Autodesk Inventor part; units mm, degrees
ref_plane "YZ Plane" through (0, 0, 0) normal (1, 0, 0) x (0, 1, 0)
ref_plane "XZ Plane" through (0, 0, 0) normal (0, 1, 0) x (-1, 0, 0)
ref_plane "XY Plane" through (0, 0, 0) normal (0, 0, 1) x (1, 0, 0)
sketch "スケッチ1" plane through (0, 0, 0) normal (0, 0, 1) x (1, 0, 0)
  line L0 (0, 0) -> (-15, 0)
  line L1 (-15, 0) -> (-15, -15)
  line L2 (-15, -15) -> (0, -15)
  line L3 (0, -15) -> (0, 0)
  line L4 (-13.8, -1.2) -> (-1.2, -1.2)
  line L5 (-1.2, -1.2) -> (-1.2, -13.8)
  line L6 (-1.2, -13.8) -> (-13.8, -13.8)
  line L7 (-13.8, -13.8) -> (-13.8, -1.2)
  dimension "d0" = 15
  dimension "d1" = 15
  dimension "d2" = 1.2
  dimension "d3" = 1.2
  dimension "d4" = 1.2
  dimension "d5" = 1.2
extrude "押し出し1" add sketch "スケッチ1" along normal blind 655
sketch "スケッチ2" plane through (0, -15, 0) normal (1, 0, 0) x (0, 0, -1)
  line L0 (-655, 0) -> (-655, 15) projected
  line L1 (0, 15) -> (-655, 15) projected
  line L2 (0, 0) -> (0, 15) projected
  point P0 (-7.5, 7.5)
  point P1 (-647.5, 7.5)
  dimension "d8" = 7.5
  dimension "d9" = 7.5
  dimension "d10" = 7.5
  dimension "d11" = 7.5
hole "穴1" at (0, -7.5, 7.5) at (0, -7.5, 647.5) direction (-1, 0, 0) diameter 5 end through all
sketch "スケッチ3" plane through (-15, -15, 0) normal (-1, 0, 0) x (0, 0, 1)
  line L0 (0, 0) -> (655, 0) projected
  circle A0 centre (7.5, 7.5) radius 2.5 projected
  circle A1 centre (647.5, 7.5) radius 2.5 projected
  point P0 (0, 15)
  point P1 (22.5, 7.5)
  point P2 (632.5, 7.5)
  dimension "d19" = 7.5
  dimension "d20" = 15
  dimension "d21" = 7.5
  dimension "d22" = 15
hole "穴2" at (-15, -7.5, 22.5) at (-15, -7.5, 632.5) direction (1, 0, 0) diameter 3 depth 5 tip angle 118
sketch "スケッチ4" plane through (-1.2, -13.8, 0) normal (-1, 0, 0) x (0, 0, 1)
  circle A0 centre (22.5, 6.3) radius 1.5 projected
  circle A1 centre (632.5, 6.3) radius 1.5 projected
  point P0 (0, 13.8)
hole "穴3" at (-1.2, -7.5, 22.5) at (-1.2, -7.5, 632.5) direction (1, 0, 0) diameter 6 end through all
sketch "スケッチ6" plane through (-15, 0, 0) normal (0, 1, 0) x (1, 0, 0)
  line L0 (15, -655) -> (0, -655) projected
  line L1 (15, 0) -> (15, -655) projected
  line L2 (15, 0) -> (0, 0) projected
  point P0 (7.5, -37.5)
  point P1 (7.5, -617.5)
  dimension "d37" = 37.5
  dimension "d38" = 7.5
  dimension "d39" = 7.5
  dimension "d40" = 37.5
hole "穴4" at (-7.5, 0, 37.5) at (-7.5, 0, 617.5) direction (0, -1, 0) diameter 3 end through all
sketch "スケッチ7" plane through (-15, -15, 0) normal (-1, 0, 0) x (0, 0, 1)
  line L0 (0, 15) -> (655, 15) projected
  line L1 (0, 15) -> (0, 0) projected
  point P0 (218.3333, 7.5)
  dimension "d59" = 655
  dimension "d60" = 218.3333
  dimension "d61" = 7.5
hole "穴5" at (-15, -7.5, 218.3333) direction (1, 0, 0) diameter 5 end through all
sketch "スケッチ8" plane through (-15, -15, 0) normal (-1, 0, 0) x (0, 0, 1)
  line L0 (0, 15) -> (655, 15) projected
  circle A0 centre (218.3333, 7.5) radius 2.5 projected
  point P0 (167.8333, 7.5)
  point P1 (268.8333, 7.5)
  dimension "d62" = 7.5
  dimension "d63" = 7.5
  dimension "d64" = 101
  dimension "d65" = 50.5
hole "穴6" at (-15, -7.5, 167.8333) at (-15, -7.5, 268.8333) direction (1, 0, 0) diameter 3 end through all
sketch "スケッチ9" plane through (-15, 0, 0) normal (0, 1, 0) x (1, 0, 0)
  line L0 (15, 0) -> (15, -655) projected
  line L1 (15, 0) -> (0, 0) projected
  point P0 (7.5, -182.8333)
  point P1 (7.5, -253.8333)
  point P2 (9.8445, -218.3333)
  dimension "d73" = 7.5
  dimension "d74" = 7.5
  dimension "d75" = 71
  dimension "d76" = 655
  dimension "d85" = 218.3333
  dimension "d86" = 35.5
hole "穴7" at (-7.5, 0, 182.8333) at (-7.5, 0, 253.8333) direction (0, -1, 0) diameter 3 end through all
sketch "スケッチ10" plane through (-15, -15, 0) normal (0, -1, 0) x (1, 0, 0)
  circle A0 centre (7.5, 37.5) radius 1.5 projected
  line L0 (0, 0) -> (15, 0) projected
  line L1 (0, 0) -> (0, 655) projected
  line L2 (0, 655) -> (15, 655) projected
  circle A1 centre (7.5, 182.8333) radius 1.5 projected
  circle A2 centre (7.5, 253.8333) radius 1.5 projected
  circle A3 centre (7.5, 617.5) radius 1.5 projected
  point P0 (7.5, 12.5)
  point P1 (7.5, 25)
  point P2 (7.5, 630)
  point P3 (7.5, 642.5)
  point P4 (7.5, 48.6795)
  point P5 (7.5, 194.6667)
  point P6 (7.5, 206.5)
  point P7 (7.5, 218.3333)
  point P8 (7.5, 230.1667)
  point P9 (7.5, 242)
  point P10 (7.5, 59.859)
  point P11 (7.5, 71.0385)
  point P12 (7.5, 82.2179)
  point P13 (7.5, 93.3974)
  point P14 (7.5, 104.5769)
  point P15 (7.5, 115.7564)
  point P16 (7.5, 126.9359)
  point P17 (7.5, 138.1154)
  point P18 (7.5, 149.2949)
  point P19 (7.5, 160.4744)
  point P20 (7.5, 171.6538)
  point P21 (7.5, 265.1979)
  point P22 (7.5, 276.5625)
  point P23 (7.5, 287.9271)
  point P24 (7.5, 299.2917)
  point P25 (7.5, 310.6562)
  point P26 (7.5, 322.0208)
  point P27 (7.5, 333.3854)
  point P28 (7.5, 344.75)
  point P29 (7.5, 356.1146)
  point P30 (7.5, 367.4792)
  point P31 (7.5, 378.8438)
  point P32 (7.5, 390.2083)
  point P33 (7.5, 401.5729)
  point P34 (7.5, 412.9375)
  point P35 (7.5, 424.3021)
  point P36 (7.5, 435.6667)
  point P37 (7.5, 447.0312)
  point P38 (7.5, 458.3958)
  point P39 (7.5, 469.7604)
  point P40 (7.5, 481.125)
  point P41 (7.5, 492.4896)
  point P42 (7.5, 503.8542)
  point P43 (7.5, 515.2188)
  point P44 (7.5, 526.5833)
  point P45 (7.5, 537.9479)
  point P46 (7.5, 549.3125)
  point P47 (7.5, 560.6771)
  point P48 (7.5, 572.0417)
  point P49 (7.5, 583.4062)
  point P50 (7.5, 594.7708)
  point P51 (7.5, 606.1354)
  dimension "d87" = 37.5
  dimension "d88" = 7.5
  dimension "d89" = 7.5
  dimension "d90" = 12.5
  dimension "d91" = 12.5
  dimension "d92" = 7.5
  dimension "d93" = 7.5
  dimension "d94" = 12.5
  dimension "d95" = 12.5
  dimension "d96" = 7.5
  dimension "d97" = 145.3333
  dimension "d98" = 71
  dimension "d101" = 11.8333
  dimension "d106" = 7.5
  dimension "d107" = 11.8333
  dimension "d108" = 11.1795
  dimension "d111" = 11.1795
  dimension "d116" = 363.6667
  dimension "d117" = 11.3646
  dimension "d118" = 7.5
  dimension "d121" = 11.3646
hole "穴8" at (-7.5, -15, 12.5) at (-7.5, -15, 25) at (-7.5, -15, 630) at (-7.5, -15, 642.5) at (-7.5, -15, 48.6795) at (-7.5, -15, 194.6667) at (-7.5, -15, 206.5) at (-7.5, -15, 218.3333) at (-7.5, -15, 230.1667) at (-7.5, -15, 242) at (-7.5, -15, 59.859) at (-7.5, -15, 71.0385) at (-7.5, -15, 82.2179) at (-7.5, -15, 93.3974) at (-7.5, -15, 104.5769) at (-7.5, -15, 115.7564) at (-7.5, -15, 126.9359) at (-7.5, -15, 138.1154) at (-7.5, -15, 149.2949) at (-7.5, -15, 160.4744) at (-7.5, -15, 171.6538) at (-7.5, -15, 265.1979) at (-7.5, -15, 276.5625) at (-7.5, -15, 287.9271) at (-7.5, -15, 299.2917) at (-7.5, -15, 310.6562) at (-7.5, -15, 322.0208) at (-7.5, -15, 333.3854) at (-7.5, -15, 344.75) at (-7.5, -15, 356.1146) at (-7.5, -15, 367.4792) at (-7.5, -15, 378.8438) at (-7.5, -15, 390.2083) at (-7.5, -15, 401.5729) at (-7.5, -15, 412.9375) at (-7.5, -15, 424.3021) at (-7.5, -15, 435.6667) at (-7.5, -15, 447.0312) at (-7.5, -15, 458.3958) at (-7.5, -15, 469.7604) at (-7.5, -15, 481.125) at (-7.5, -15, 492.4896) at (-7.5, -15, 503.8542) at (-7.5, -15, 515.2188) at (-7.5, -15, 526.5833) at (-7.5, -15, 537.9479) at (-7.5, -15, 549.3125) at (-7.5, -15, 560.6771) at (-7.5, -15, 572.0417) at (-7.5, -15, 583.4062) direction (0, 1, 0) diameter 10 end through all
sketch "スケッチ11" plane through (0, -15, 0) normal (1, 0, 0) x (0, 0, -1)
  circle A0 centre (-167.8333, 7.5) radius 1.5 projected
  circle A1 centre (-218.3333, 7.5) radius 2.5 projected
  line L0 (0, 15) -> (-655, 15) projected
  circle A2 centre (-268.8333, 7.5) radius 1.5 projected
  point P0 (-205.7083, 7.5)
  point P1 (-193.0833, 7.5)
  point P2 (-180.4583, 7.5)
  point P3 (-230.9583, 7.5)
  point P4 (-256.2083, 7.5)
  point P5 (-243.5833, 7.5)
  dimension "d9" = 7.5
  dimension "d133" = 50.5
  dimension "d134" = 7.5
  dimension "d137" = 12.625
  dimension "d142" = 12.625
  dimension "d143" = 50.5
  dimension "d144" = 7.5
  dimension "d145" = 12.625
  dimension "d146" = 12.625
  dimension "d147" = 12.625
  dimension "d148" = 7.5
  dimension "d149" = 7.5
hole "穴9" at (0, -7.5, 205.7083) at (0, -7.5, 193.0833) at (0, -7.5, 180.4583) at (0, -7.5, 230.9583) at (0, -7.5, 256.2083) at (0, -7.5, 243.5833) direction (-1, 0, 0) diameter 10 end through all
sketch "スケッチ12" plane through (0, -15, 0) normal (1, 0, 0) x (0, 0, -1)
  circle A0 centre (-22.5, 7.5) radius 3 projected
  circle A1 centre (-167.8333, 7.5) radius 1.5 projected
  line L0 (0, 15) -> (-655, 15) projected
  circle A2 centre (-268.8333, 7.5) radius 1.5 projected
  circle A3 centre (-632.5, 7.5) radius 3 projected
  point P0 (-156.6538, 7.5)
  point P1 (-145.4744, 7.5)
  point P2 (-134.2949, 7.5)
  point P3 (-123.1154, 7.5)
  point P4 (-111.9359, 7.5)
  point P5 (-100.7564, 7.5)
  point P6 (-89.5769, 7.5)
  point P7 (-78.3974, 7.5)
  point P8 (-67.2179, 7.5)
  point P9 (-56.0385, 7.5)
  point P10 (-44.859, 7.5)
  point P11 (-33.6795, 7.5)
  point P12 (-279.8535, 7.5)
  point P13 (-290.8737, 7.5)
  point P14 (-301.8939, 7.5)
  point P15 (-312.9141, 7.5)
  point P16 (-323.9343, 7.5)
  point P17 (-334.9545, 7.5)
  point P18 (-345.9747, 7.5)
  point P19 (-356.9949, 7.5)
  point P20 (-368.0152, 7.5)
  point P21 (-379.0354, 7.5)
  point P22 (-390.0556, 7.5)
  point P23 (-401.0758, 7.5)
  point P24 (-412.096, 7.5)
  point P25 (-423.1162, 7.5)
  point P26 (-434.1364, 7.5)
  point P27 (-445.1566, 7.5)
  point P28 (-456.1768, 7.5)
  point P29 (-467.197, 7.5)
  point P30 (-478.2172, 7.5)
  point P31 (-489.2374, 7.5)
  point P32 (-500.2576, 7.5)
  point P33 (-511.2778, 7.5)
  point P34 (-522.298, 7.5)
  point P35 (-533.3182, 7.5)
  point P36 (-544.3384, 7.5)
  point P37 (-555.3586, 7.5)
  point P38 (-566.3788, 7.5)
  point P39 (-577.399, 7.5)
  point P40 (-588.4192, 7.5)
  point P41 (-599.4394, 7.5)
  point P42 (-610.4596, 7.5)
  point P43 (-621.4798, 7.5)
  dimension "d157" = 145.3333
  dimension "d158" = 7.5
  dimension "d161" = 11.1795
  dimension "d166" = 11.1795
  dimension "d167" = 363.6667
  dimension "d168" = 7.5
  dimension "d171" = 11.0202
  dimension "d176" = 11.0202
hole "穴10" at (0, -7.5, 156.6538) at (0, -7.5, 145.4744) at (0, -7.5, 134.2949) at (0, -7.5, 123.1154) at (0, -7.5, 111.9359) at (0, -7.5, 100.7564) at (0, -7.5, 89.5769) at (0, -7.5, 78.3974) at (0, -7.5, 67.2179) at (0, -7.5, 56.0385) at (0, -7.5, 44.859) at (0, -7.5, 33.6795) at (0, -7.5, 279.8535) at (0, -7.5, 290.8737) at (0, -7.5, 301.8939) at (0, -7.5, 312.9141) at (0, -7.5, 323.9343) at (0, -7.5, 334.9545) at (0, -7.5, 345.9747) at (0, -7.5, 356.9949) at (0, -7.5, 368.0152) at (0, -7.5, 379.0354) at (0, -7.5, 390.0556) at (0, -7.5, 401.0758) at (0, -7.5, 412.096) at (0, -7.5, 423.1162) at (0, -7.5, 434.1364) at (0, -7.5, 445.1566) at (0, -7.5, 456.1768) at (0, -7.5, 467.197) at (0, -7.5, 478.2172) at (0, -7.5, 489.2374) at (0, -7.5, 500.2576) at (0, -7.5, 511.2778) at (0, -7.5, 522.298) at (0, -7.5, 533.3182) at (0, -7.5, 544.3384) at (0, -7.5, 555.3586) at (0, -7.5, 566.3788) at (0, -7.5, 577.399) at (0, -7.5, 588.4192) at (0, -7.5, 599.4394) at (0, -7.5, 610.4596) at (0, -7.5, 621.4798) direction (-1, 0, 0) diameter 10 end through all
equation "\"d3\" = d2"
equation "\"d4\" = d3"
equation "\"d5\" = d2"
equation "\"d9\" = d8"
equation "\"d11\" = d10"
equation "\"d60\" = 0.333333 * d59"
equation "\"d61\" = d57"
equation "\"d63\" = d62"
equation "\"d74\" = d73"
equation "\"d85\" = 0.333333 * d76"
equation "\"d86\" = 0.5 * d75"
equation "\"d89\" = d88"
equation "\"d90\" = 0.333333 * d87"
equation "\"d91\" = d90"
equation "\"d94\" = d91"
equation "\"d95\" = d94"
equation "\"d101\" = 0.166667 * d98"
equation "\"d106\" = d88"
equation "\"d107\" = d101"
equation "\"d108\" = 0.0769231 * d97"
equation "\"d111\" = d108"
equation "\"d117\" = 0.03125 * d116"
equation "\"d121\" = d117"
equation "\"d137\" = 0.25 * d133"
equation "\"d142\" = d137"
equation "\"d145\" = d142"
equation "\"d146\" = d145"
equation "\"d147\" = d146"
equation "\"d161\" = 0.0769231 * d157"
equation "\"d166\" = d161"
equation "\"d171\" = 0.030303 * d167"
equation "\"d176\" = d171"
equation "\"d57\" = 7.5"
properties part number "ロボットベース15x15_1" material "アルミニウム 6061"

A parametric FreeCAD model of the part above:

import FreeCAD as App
import Part
import Sketcher
Q = App.Units.Quantity


def add_polygon(sketch, points):
    """Adds a closed chain of lines whose ends are joined by coincident constraints."""
    first, n = sketch.GeometryCount, len(points)
    for a, b in zip(points, points[1:] + points[:1]):
        sketch.addGeometry(Part.LineSegment(App.Vector(*a, 0), App.Vector(*b, 0)), False)
    for i in range(n):
        sketch.addConstraint(Sketcher.Constraint("Coincident", first + i, 2, first + (i + 1) % n, 1))

doc = App.newDocument("Part")
body = doc.addObject("PartDesign::Body", "Body")

# Sketch on XY plane
sketch1 = body.newObject("Sketcher::SketchObject", "Sketch")
sketch1.AttachmentSupport = (doc.getObject("XY_Plane"), [""])
sketch1.MapMode = "FlatFace"
add_polygon(sketch1, [(0, -15), (0, 0), (-15, 0), (-15, -15)])  # lines 0-3
add_polygon(sketch1, [(-14, -14), (-14, -1), (-1, -1), (-1, -14)])  # lines 4-7
sketch1.addConstraint([
    Sketcher.Constraint("Vertical", 0),
    Sketcher.Constraint("Horizontal", 1),
    Sketcher.Constraint("Vertical", 2),
    Sketcher.Constraint("Horizontal", 3),
    Sketcher.Constraint("Vertical", 4),
    Sketcher.Constraint("Horizontal", 5),
    Sketcher.Constraint("Vertical", 6),
    Sketcher.Constraint("Horizontal", 7),
    Sketcher.Constraint("Coincident", 0, 2, -1, 1),
    Sketcher.Constraint("Equal", 3, 0),
    Sketcher.Constraint("Equal", 7, 4),
    Sketcher.Constraint("DistanceX", 1, 2, 1, 1, Q("15 mm")),
    Sketcher.Constraint("DistanceY", 4, 2, -1, 1, Q("1.2 mm")),
    Sketcher.Constraint("DistanceX", 5, 2, -1, 1, Q("1.2 mm")),
    Sketcher.Constraint("DistanceX", 1, 2, 4, 2, Q("1.2 mm")),
])
pad1 = body.newObject("PartDesign::Pad", "Pad")
pad1.Profile = sketch1
pad1.Length = 655

# Sketch on YZ plane
sketch2 = body.newObject("Sketcher::SketchObject", "Sketch001")
sketch2.AttachmentSupport = (doc.getObject("YZ_Plane"), [""])
sketch2.MapMode = "FlatFace"
sketch2.addGeometry([
    Part.Circle(App.Vector(-7.5, 7.5, 0), App.Vector(0, 0, 1), 2.5),
    Part.Circle(App.Vector(-7.5, 647.5, 0), App.Vector(0, 0, 1), 2.5),
], False)
sketch2.addConstraint([
    Sketcher.Constraint("Equal", 0, 1),
    Sketcher.Constraint("Vertical", 0, 3, 1, 3),
    Sketcher.Constraint("Diameter", 0, Q("5 mm")),
    Sketcher.Constraint("DistanceY", 0, 3, 1, 3, Q("640 mm")),
    Sketcher.Constraint("DistanceX", 0, 3, -1, 1, Q("7.5 mm")),
    Sketcher.Constraint("DistanceY", -1, 1, 0, 3, Q("7.5 mm")),
])
doc.recompute()
hole = body.newObject("PartDesign::Hole", "Hole")
hole.Profile = sketch2
hole.ThreadType = "None"
hole.Diameter = 5
hole.DepthType = "ThroughAll"

# Sketch on YZ plane
sketch3 = body.newObject("Sketcher::SketchObject", "Sketch002")
sketch3.AttachmentSupport = (doc.getObject("YZ_Plane"), [""])
sketch3.MapMode = "FlatFace"
sketch3.AttachmentOffset = App.Placement(App.Vector(0, 0, -15), App.Rotation())
sketch3.addGeometry([
    Part.Circle(App.Vector(-7.5, 22.5, 0), App.Vector(0, 0, 1), 1.5),
    Part.Circle(App.Vector(-7.5, 632.5, 0), App.Vector(0, 0, 1), 1.5),
], False)
sketch3.addConstraint([
    Sketcher.Constraint("Equal", 0, 1),
    Sketcher.Constraint("Vertical", 0, 3, 1, 3),
    Sketcher.Constraint("Diameter", 0, Q("3 mm")),
    Sketcher.Constraint("DistanceY", 0, 3, 1, 3, Q("610 mm")),
    Sketcher.Constraint("DistanceX", 0, 3, -1, 1, Q("7.5 mm")),
    Sketcher.Constraint("DistanceY", -1, 1, 0, 3, Q("22.5 mm")),
])
doc.recompute()
hole2 = body.newObject("PartDesign::Hole", "Hole001")
hole2.Profile = sketch3
hole2.ThreadType = "None"
hole2.Diameter = 3
hole2.DepthType = "Dimension"
hole2.Depth = 5
hole2.DrillPoint = "Angled"
hole2.DrillPointAngle = 118
hole2.Reversed = True

# Sketch on YZ plane
sketch4 = body.newObject("Sketcher::SketchObject", "Sketch003")
sketch4.AttachmentSupport = (doc.getObject("YZ_Plane"), [""])
sketch4.MapMode = "FlatFace"
sketch4.AttachmentOffset = App.Placement(App.Vector(0, 0, -1.2), App.Rotation())
sketch4.addGeometry([
    Part.Circle(App.Vector(-7.5, 22.5, 0), App.Vector(0, 0, 1), 3),
    Part.Circle(App.Vector(-7.5, 632.5, 0), App.Vector(0, 0, 1), 3),
], False)
sketch4.addConstraint([
    Sketcher.Constraint("Equal", 0, 1),
    Sketcher.Constraint("Vertical", 0, 3, 1, 3),
    Sketcher.Constraint("Diameter", 0, Q("6 mm")),
    Sketcher.Constraint("DistanceY", 0, 3, 1, 3, Q("610 mm")),
    Sketcher.Constraint("DistanceX", 0, 3, -1, 1, Q("7.5 mm")),
    Sketcher.Constraint("DistanceY", -1, 1, 0, 3, Q("22.5 mm")),
])
doc.recompute()
hole3 = body.newObject("PartDesign::Hole", "Hole002")
hole3.Profile = sketch4
hole3.ThreadType = "None"
hole3.Diameter = 6
hole3.DepthType = "ThroughAll"
hole3.Reversed = True

# Sketch on XZ plane
sketch5 = body.newObject("Sketcher::SketchObject", "Sketch004")
sketch5.AttachmentSupport = (doc.getObject("XZ_Plane"), [""])
sketch5.MapMode = "FlatFace"
sketch5.addGeometry([
    Part.Circle(App.Vector(-7.5, 37.5, 0), App.Vector(0, 0, 1), 1.5),
    Part.Circle(App.Vector(-7.5, 617.5, 0), App.Vector(0, 0, 1), 1.5),
], False)
sketch5.addConstraint([
    Sketcher.Constraint("Equal", 0, 1),
    Sketcher.Constraint("Vertical", 0, 3, 1, 3),
    Sketcher.Constraint("Diameter", 0, Q("3 mm")),
    Sketcher.Constraint("DistanceY", 0, 3, 1, 3, Q("580 mm")),
    Sketcher.Constraint("DistanceX", 0, 3, -1, 1, Q("7.5 mm")),
    Sketcher.Constraint("DistanceY", -1, 1, 0, 3, Q("37.5 mm")),
])
doc.recompute()
hole4 = body.newObject("PartDesign::Hole", "Hole003")
hole4.Profile = sketch5
hole4.ThreadType = "None"
hole4.Diameter = 3
hole4.DepthType = "ThroughAll"
hole4.Reversed = True

# Sketch on YZ plane
sketch6 = body.newObject("Sketcher::SketchObject", "Sketch005")
sketch6.AttachmentSupport = (doc.getObject("YZ_Plane"), [""])
sketch6.MapMode = "FlatFace"
sketch6.AttachmentOffset = App.Placement(App.Vector(0, 0, -15), App.Rotation())
sketch6.addGeometry(Part.Circle(App.Vector(-7.5, 218.3, 0), App.Vector(0, 0, 1), 2.5), False)
sketch6.addConstraint([
    Sketcher.Constraint("Diameter", 0, Q("5 mm")),
    Sketcher.Constraint("DistanceX", 0, 3, -1, 1, Q("7.5 mm")),
    Sketcher.Constraint("DistanceY", -1, 1, 0, 3, Q("218.3333 mm")),
])
doc.recompute()
hole5 = body.newObject("PartDesign::Hole", "Hole004")
hole5.Profile = sketch6
hole5.ThreadType = "None"
hole5.Diameter = 5
hole5.DepthType = "ThroughAll"
hole5.Reversed = True

# Sketch on YZ plane
sketch7 = body.newObject("Sketcher::SketchObject", "Sketch006")
sketch7.AttachmentSupport = (doc.getObject("YZ_Plane"), [""])
sketch7.MapMode = "FlatFace"
sketch7.AttachmentOffset = App.Placement(App.Vector(0, 0, -15), App.Rotation())
sketch7.addGeometry([
    Part.Circle(App.Vector(-7.5, 167.8, 0), App.Vector(0, 0, 1), 1.5),
    Part.Circle(App.Vector(-7.5, 268.8, 0), App.Vector(0, 0, 1), 1.5),
], False)
sketch7.addConstraint([
    Sketcher.Constraint("Equal", 0, 1),
    Sketcher.Constraint("Vertical", 0, 3, 1, 3),
    Sketcher.Constraint("Diameter", 0, Q("3 mm")),
    Sketcher.Constraint("DistanceY", 0, 3, 1, 3, Q("101 mm")),
    Sketcher.Constraint("DistanceX", 0, 3, -1, 1, Q("7.5 mm")),
    Sketcher.Constraint("DistanceY", -1, 1, 0, 3, Q("167.8333 mm")),
])
doc.recompute()
hole6 = body.newObject("PartDesign::Hole", "Hole005")
hole6.Profile = sketch7
hole6.ThreadType = "None"
hole6.Diameter = 3
hole6.DepthType = "ThroughAll"
hole6.Reversed = True

# Sketch on XZ plane
sketch8 = body.newObject("Sketcher::SketchObject", "Sketch007")
sketch8.AttachmentSupport = (doc.getObject("XZ_Plane"), [""])
sketch8.MapMode = "FlatFace"
sketch8.addGeometry([
    Part.Circle(App.Vector(-7.5, 182.8, 0), App.Vector(0, 0, 1), 1.5),
    Part.Circle(App.Vector(-7.5, 253.8, 0), App.Vector(0, 0, 1), 1.5),
], False)
sketch8.addConstraint([
    Sketcher.Constraint("Equal", 0, 1),
    Sketcher.Constraint("Vertical", 0, 3, 1, 3),
    Sketcher.Constraint("Diameter", 0, Q("3 mm")),
    Sketcher.Constraint("DistanceY", 0, 3, 1, 3, Q("71 mm")),
    Sketcher.Constraint("DistanceX", 0, 3, -1, 1, Q("7.5 mm")),
    Sketcher.Constraint("DistanceY", -1, 1, 0, 3, Q("182.8333 mm")),
])
doc.recompute()
hole7 = body.newObject("PartDesign::Hole", "Hole006")
hole7.Profile = sketch8
hole7.ThreadType = "None"
hole7.Diameter = 3
hole7.DepthType = "ThroughAll"
hole7.Reversed = True

# Sketch on XZ plane
sketch9 = body.newObject("Sketcher::SketchObject", "Sketch008")
sketch9.AttachmentSupport = (doc.getObject("XZ_Plane"), [""])
sketch9.MapMode = "FlatFace"
sketch9.AttachmentOffset = App.Placement(App.Vector(0, 0, 15), App.Rotation())
sketch9.addGeometry([
    Part.Circle(App.Vector(-8, 12, 0), App.Vector(0, 0, 1), 5),  # 0
    Part.Circle(App.Vector(-8, 25, 0), App.Vector(0, 0, 1), 5),  # 1
    Part.Circle(App.Vector(-8, 630, 0), App.Vector(0, 0, 1), 5),  # 2
    Part.Circle(App.Vector(-8, 642, 0), App.Vector(0, 0, 1), 5),  # 3
    Part.Circle(App.Vector(-8, 49, 0), App.Vector(0, 0, 1), 5),  # 4
    Part.Circle(App.Vector(-8, 195, 0), App.Vector(0, 0, 1), 5),  # 5
    Part.Circle(App.Vector(-8, 206, 0), App.Vector(0, 0, 1), 5),  # 6
    Part.Circle(App.Vector(-8, 218, 0), App.Vector(0, 0, 1), 5),  # 7
    Part.Circle(App.Vector(-8, 230, 0), App.Vector(0, 0, 1), 5),  # 8
    Part.Circle(App.Vector(-8, 242, 0), App.Vector(0, 0, 1), 5),  # 9
    Part.Circle(App.Vector(-8, 60, 0), App.Vector(0, 0, 1), 5),  # 10
    Part.Circle(App.Vector(-8, 71, 0), App.Vector(0, 0, 1), 5),  # 11
    Part.Circle(App.Vector(-8, 82, 0), App.Vector(0, 0, 1), 5),  # 12
    Part.Circle(App.Vector(-8, 93, 0), App.Vector(0, 0, 1), 5),  # 13
    Part.Circle(App.Vector(-8, 105, 0), App.Vector(0, 0, 1), 5),  # 14
    Part.Circle(App.Vector(-8, 116, 0), App.Vector(0, 0, 1), 5),  # 15
    Part.Circle(App.Vector(-8, 127, 0), App.Vector(0, 0, 1), 5),  # 16
    Part.Circle(App.Vector(-8, 138, 0), App.Vector(0, 0, 1), 5),  # 17
    Part.Circle(App.Vector(-8, 149, 0), App.Vector(0, 0, 1), 5),  # 18
    Part.Circle(App.Vector(-8, 160, 0), App.Vector(0, 0, 1), 5),  # 19
    Part.Circle(App.Vector(-8, 172, 0), App.Vector(0, 0, 1), 5),  # 20
    Part.Circle(App.Vector(-8, 265, 0), App.Vector(0, 0, 1), 5),  # 21
    Part.Circle(App.Vector(-8, 277, 0), App.Vector(0, 0, 1), 5),  # 22
    Part.Circle(App.Vector(-8, 288, 0), App.Vector(0, 0, 1), 5),  # 23
    Part.Circle(App.Vector(-8, 299, 0), App.Vector(0, 0, 1), 5),  # 24
    Part.Circle(App.Vector(-8, 311, 0), App.Vector(0, 0, 1), 5),  # 25
    Part.Circle(App.Vector(-8, 322, 0), App.Vector(0, 0, 1), 5),  # 26
    Part.Circle(App.Vector(-8, 333, 0), App.Vector(0, 0, 1), 5),  # 27
    Part.Circle(App.Vector(-8, 345, 0), App.Vector(0, 0, 1), 5),  # 28
    Part.Circle(App.Vector(-8, 356, 0), App.Vector(0, 0, 1), 5),  # 29
    Part.Circle(App.Vector(-8, 367, 0), App.Vector(0, 0, 1), 5),  # 30
    Part.Circle(App.Vector(-8, 379, 0), App.Vector(0, 0, 1), 5),  # 31
    Part.Circle(App.Vector(-8, 390, 0), App.Vector(0, 0, 1), 5),  # 32
    Part.Circle(App.Vector(-8, 402, 0), App.Vector(0, 0, 1), 5),  # 33
    Part.Circle(App.Vector(-8, 413, 0), App.Vector(0, 0, 1), 5),  # 34
    Part.Circle(App.Vector(-8, 424, 0), App.Vector(0, 0, 1), 5),  # 35
    Part.Circle(App.Vector(-8, 436, 0), App.Vector(0, 0, 1), 5),  # 36
    Part.Circle(App.Vector(-8, 447, 0), App.Vector(0, 0, 1), 5),  # 37
    Part.Circle(App.Vector(-8, 458, 0), App.Vector(0, 0, 1), 5),  # 38
    Part.Circle(App.Vector(-8, 470, 0), App.Vector(0, 0, 1), 5),  # 39
    Part.Circle(App.Vector(-8, 481, 0), App.Vector(0, 0, 1), 5),  # 40
    Part.Circle(App.Vector(-8, 492, 0), App.Vector(0, 0, 1), 5),  # 41
    Part.Circle(App.Vector(-8, 504, 0), App.Vector(0, 0, 1), 5),  # 42
    Part.Circle(App.Vector(-8, 515, 0), App.Vector(0, 0, 1), 5),  # 43
    Part.Circle(App.Vector(-8, 527, 0), App.Vector(0, 0, 1), 5),  # 44
    Part.Circle(App.Vector(-8, 538, 0), App.Vector(0, 0, 1), 5),  # 45
    Part.Circle(App.Vector(-8, 549, 0), App.Vector(0, 0, 1), 5),  # 46
    Part.Circle(App.Vector(-8, 561, 0), App.Vector(0, 0, 1), 5),  # 47
    Part.Circle(App.Vector(-8, 572, 0), App.Vector(0, 0, 1), 5),  # 48
    Part.Circle(App.Vector(-8, 583, 0), App.Vector(0, 0, 1), 5),  # 49
], False)
sketch9.addConstraint([
    Sketcher.Constraint("Equal", 0, 1),
    Sketcher.Constraint("Equal", 1, 2),
    Sketcher.Constraint("Equal", 2, 3),
    Sketcher.Constraint("Equal", 3, 4),
    Sketcher.Constraint("Equal", 4, 5),
    Sketcher.Constraint("Equal", 5, 6),
    Sketcher.Constraint("Equal", 6, 7),
    Sketcher.Constraint("Equal", 7, 8),
    Sketcher.Constraint("Equal", 8, 9),
    Sketcher.Constraint("Equal", 9, 10),
    Sketcher.Constraint("Equal", 10, 11),
    Sketcher.Constraint("Equal", 11, 12),
    Sketcher.Constraint("Equal", 12, 13),
    Sketcher.Constraint("Equal", 13, 14),
    Sketcher.Constraint("Equal", 14, 15),
    Sketcher.Constraint("Equal", 15, 16),
    Sketcher.Constraint("Equal", 16, 17),
    Sketcher.Constraint("Equal", 17, 18),
    Sketcher.Constraint("Equal", 18, 19),
    Sketcher.Constraint("Equal", 19, 20),
    Sketcher.Constraint("Equal", 20, 21),
    Sketcher.Constraint("Equal", 21, 22),
    Sketcher.Constraint("Equal", 22, 23),
    Sketcher.Constraint("Equal", 23, 24),
    Sketcher.Constraint("Equal", 24, 25),
    Sketcher.Constraint("Equal", 25, 26),
    Sketcher.Constraint("Equal", 26, 27),
    Sketcher.Constraint("Equal", 27, 28),
    Sketcher.Constraint("Equal", 28, 29),
    Sketcher.Constraint("Equal", 29, 30),
    Sketcher.Constraint("Equal", 30, 31),
    Sketcher.Constraint("Equal", 31, 32),
    Sketcher.Constraint("Equal", 32, 33),
    Sketcher.Constraint("Equal", 33, 34),
    Sketcher.Constraint("Equal", 34, 35),
    Sketcher.Constraint("Equal", 35, 36),
    Sketcher.Constraint("Equal", 36, 37),
    Sketcher.Constraint("Equal", 37, 38),
    Sketcher.Constraint("Equal", 38, 39),
    Sketcher.Constraint("Equal", 39, 40),
    Sketcher.Constraint("Equal", 40, 41),
    Sketcher.Constraint("Equal", 41, 42),
    Sketcher.Constraint("Equal", 42, 43),
    Sketcher.Constraint("Equal", 43, 44),
    Sketcher.Constraint("Equal", 44, 45),
    Sketcher.Constraint("Equal", 45, 46),
    Sketcher.Constraint("Equal", 46, 47),
    Sketcher.Constraint("Equal", 47, 48),
    Sketcher.Constraint("Equal", 48, 49),
    Sketcher.Constraint("Vertical", 0, 3, 1, 3),
    Sketcher.Constraint("Vertical", 1, 3, 2, 3),
    Sketcher.Constraint("Vertical", 2, 3, 3, 3),
    Sketcher.Constraint("Vertical", 3, 3, 4, 3),
    Sketcher.Constraint("Vertical", 4, 3, 5, 3),
    Sketcher.Constraint("Vertical", 5, 3, 6, 3),
    Sketcher.Constraint("Vertical", 6, 3, 7, 3),
    Sketcher.Constraint("Vertical", 7, 3, 8, 3),
    Sketcher.Constraint("Vertical", 8, 3, 9, 3),
    Sketcher.Constraint("Vertical", 9, 3, 10, 3),
    Sketcher.Constraint("Vertical", 10, 3, 11, 3),
    Sketcher.Constraint("Vertical", 11, 3, 12, 3),
    Sketcher.Constraint("Vertical", 12, 3, 13, 3),
    Sketcher.Constraint("Vertical", 13, 3, 14, 3),
    Sketcher.Constraint("Vertical", 14, 3, 15, 3),
    Sketcher.Constraint("Vertical", 15, 3, 16, 3),
    Sketcher.Constraint("Vertical", 16, 3, 17, 3),
    Sketcher.Constraint("Vertical", 17, 3, 18, 3),
    Sketcher.Constraint("Vertical", 18, 3, 19, 3),
    Sketcher.Constraint("Vertical", 19, 3, 20, 3),
    Sketcher.Constraint("Vertical", 20, 3, 21, 3),
    Sketcher.Constraint("Vertical", 21, 3, 22, 3),
    Sketcher.Constraint("Vertical", 22, 3, 23, 3),
    Sketcher.Constraint("Vertical", 23, 3, 24, 3),
    Sketcher.Constraint("Vertical", 24, 3, 25, 3),
    Sketcher.Constraint("Vertical", 25, 3, 26, 3),
    Sketcher.Constraint("Vertical", 26, 3, 27, 3),
    Sketcher.Constraint("Vertical", 27, 3, 28, 3),
    Sketcher.Constraint("Vertical", 28, 3, 29, 3),
    Sketcher.Constraint("Vertical", 29, 3, 30, 3),
    Sketcher.Constraint("Vertical", 30, 3, 31, 3),
    Sketcher.Constraint("Vertical", 31, 3, 32, 3),
    Sketcher.Constraint("Vertical", 32, 3, 33, 3),
    Sketcher.Constraint("Vertical", 33, 3, 34, 3),
    Sketcher.Constraint("Vertical", 34, 3, 35, 3),
    Sketcher.Constraint("Vertical", 35, 3, 36, 3),
    Sketcher.Constraint("Vertical", 36, 3, 37, 3),
    Sketcher.Constraint("Vertical", 37, 3, 38, 3),
    Sketcher.Constraint("Vertical", 38, 3, 39, 3),
    Sketcher.Constraint("Vertical", 39, 3, 40, 3),
    Sketcher.Constraint("Vertical", 40, 3, 41, 3),
    Sketcher.Constraint("Vertical", 41, 3, 42, 3),
    Sketcher.Constraint("Vertical", 42, 3, 43, 3),
    Sketcher.Constraint("Vertical", 43, 3, 44, 3),
    Sketcher.Constraint("Vertical", 44, 3, 45, 3),
    Sketcher.Constraint("Vertical", 45, 3, 46, 3),
    Sketcher.Constraint("Vertical", 46, 3, 47, 3),
    Sketcher.Constraint("Vertical", 47, 3, 48, 3),
    Sketcher.Constraint("Vertical", 48, 3, 49, 3),
    Sketcher.Constraint("Diameter", 0, Q("10 mm")),
    Sketcher.Constraint("DistanceY", -1, 1, 1, 3, Q("25 mm")),
    Sketcher.Constraint("DistanceY", -1, 1, 2, 3, Q("630 mm")),
    Sketcher.Constraint("DistanceY", -1, 1, 9, 3, Q("242 mm")),
    Sketcher.Constraint("DistanceY", 0, 3, 3, 3, Q("630 mm")),
    Sketcher.Constraint("DistanceY", 0, 3, 6, 3, Q("194 mm")),
    Sketcher.Constraint("DistanceX", 0, 3, -1, 1, Q("7.5 mm")),
    Sketcher.Constraint("DistanceY", -1, 1, 0, 3, Q("12.5 mm")),
    Sketcher.Constraint("DistanceY", 5, 3, 8, 3, Q("35.5 mm")),
    Sketcher.Constraint("DistanceY", -1, 1, 28, 3, Q("344.75 mm")),
    Sketcher.Constraint("DistanceY", -1, 1, 10, 3, Q("59.859 mm")),
    Sketcher.Constraint("DistanceY", -1, 1, 12, 3, Q("82.218 mm")),
    Sketcher.Constraint("DistanceY", -1, 1, 14, 3, Q("104.577 mm")),
    Sketcher.Constraint("DistanceY", -1, 1, 16, 3, Q("126.936 mm")),
    Sketcher.Constraint("DistanceY", -1, 1, 18, 3, Q("149.295 mm")),
    Sketcher.Constraint("DistanceY", -1, 1, 21, 3, Q("265.198 mm")),
    Sketcher.Constraint("DistanceY", -1, 1, 23, 3, Q("287.927 mm")),
    Sketcher.Constraint("DistanceY", -1, 1, 33, 3, Q("401.573 mm")),
    Sketcher.Constraint("DistanceY", -1, 1, 35, 3, Q("424.302 mm")),
    Sketcher.Constraint("DistanceY", -1, 1, 40, 3, Q("481.125 mm")),
    Sketcher.Constraint("DistanceY", -1, 1, 45, 3, Q("537.948 mm")),
    Sketcher.Constraint("DistanceY", -1, 1, 47, 3, Q("560.677 mm")),
    Sketcher.Constraint("DistanceY", 4, 3, 11, 3, Q("22.359 mm")),
    Sketcher.Constraint("DistanceY", 11, 3, 13, 3, Q("22.359 mm")),
    Sketcher.Constraint("DistanceY", 13, 3, 15, 3, Q("22.359 mm")),
    Sketcher.Constraint("DistanceY", 15, 3, 17, 3, Q("22.359 mm")),
    Sketcher.Constraint("DistanceY", 17, 3, 19, 3, Q("22.359 mm")),
    Sketcher.Constraint("DistanceY", 18, 3, 20, 3, Q("22.359 mm")),
    Sketcher.Constraint("DistanceY", 20, 3, 5, 3, Q("23.013 mm")),
    Sketcher.Constraint("DistanceY", 8, 3, 24, 3, Q("69.125 mm")),
    Sketcher.Constraint("DistanceY", 23, 3, 25, 3, Q("22.729 mm")),
    Sketcher.Constraint("DistanceY", 24, 3, 26, 3, Q("22.729 mm")),
    Sketcher.Constraint("DistanceY", 22, 3, 27, 3, Q("56.823 mm")),
    Sketcher.Constraint("DistanceY", 24, 3, 29, 3, Q("56.823 mm")),
    Sketcher.Constraint("DistanceY", 25, 3, 30, 3, Q("56.823 mm")),
    Sketcher.Constraint("DistanceY", 26, 3, 31, 3, Q("56.823 mm")),
    Sketcher.Constraint("DistanceY", 30, 3, 32, 3, Q("22.729 mm")),
    Sketcher.Constraint("DistanceY", 27, 3, 32, 3, Q("56.823 mm")),
    Sketcher.Constraint("DistanceY", 29, 3, 34, 3, Q("56.823 mm")),
    Sketcher.Constraint("DistanceY", 31, 3, 36, 3, Q("56.823 mm")),
    Sketcher.Constraint("DistanceY", 35, 3, 37, 3, Q("22.729 mm")),
    Sketcher.Constraint("DistanceY", 36, 3, 38, 3, Q("22.729 mm")),
    Sketcher.Constraint("DistanceY", 34, 3, 39, 3, Q("56.823 mm")),
    Sketcher.Constraint("DistanceY", 36, 3, 41, 3, Q("56.823 mm")),
    Sketcher.Constraint("DistanceY", 37, 3, 42, 3, Q("56.823 mm")),
    Sketcher.Constraint("DistanceY", 38, 3, 43, 3, Q("56.823 mm")),
    Sketcher.Constraint("DistanceY", 42, 3, 44, 3, Q("22.729 mm")),
    Sketcher.Constraint("DistanceY", 41, 3, 46, 3, Q("56.823 mm")),
    Sketcher.Constraint("DistanceY", 43, 3, 48, 3, Q("56.823 mm")),
    Sketcher.Constraint("DistanceY", 47, 3, 49, 3, Q("22.729 mm")),
    Sketcher.Constraint("DistanceY", -1, 1, 4, 3, Q("48.6795 mm")),
    Sketcher.Constraint("DistanceY", -1, 1, 7, 3, Q("218.3333 mm")),
])
doc.recompute()
hole8 = body.newObject("PartDesign::Hole", "Hole007")
hole8.Profile = sketch9
hole8.ThreadType = "None"
hole8.Diameter = 10
hole8.DepthType = "ThroughAll"

# Sketch on YZ plane
sketch10 = body.newObject("Sketcher::SketchObject", "Sketch009")
sketch10.AttachmentSupport = (doc.getObject("YZ_Plane"), [""])
sketch10.MapMode = "FlatFace"
sketch10.addGeometry([
    Part.Circle(App.Vector(-8, 206, 0), App.Vector(0, 0, 1), 5),  # 0
    Part.Circle(App.Vector(-8, 193, 0), App.Vector(0, 0, 1), 5),  # 1
    Part.Circle(App.Vector(-8, 180, 0), App.Vector(0, 0, 1), 5),  # 2
    Part.Circle(App.Vector(-8, 231, 0), App.Vector(0, 0, 1), 5),  # 3
    Part.Circle(App.Vector(-8, 256, 0), App.Vector(0, 0, 1), 5),  # 4
    Part.Circle(App.Vector(-8, 244, 0), App.Vector(0, 0, 1), 5),  # 5
], False)
sketch10.addConstraint([
    Sketcher.Constraint("Equal", 0, 1),
    Sketcher.Constraint("Equal", 1, 2),
    Sketcher.Constraint("Equal", 2, 3),
    Sketcher.Constraint("Equal", 3, 4),
    Sketcher.Constraint("Equal", 4, 5),
    Sketcher.Constraint("Vertical", 0, 3, 1, 3),
    Sketcher.Constraint("Vertical", 1, 3, 2, 3),
    Sketcher.Constraint("Vertical", 2, 3, 3, 3),
    Sketcher.Constraint("Vertical", 3, 3, 4, 3),
    Sketcher.Constraint("Vertical", 4, 3, 5, 3),
    Sketcher.Constraint("Diameter", 0, Q("10 mm")),
    Sketcher.Constraint("DistanceX", 0, 3, -1, 1, Q("7.5 mm")),
    Sketcher.Constraint("DistanceY", 2, 3, 3, 3, Q("50.5 mm")),
    Sketcher.Constraint("DistanceY", 0, 3, 4, 3, Q("50.5 mm")),
    Sketcher.Constraint("DistanceY", 1, 3, 5, 3, Q("50.5 mm")),
    Sketcher.Constraint("DistanceY", 2, 3, 0, 3, Q("25.25 mm")),
    Sketcher.Constraint("DistanceY", 1, 3, 0, 3, Q("12.625 mm")),
    Sketcher.Constraint("DistanceY", -1, 1, 0, 3, Q("205.7083 mm")),
])
doc.recompute()
hole9 = body.newObject("PartDesign::Hole", "Hole008")
hole9.Profile = sketch10
hole9.ThreadType = "None"
hole9.Diameter = 10
hole9.DepthType = "ThroughAll"

# Sketch on YZ plane
sketch11 = body.newObject("Sketcher::SketchObject", "Sketch010")
sketch11.AttachmentSupport = (doc.getObject("YZ_Plane"), [""])
sketch11.MapMode = "FlatFace"
sketch11.addGeometry([
    Part.Circle(App.Vector(-8, 157, 0), App.Vector(0, 0, 1), 5),  # 0
    Part.Circle(App.Vector(-8, 145, 0), App.Vector(0, 0, 1), 5),  # 1
    Part.Circle(App.Vector(-8, 134, 0), App.Vector(0, 0, 1), 5),  # 2
    Part.Circle(App.Vector(-8, 123, 0), App.Vector(0, 0, 1), 5),  # 3
    Part.Circle(App.Vector(-8, 112, 0), App.Vector(0, 0, 1), 5),  # 4
    Part.Circle(App.Vector(-8, 101, 0), App.Vector(0, 0, 1), 5),  # 5
    Part.Circle(App.Vector(-8, 90, 0), App.Vector(0, 0, 1), 5),  # 6
    Part.Circle(App.Vector(-8, 78, 0), App.Vector(0, 0, 1), 5),  # 7
    Part.Circle(App.Vector(-8, 67, 0), App.Vector(0, 0, 1), 5),  # 8
    Part.Circle(App.Vector(-8, 56, 0), App.Vector(0, 0, 1), 5),  # 9
    Part.Circle(App.Vector(-8, 45, 0), App.Vector(0, 0, 1), 5),  # 10
    Part.Circle(App.Vector(-8, 34, 0), App.Vector(0, 0, 1), 5),  # 11
    Part.Circle(App.Vector(-8, 280, 0), App.Vector(0, 0, 1), 5),  # 12
    Part.Circle(App.Vector(-8, 291, 0), App.Vector(0, 0, 1), 5),  # 13
    Part.Circle(App.Vector(-8, 302, 0), App.Vector(0, 0, 1), 5),  # 14
    Part.Circle(App.Vector(-8, 313, 0), App.Vector(0, 0, 1), 5),  # 15
    Part.Circle(App.Vector(-8, 324, 0), App.Vector(0, 0, 1), 5),  # 16
    Part.Circle(App.Vector(-8, 335, 0), App.Vector(0, 0, 1), 5),  # 17
    Part.Circle(App.Vector(-8, 346, 0), App.Vector(0, 0, 1), 5),  # 18
    Part.Circle(App.Vector(-8, 357, 0), App.Vector(0, 0, 1), 5),  # 19
    Part.Circle(App.Vector(-8, 368, 0), App.Vector(0, 0, 1), 5),  # 20
    Part.Circle(App.Vector(-8, 379, 0), App.Vector(0, 0, 1), 5),  # 21
    Part.Circle(App.Vector(-8, 390, 0), App.Vector(0, 0, 1), 5),  # 22
    Part.Circle(App.Vector(-8, 401, 0), App.Vector(0, 0, 1), 5),  # 23
    Part.Circle(App.Vector(-8, 412, 0), App.Vector(0, 0, 1), 5),  # 24
    Part.Circle(App.Vector(-8, 423, 0), App.Vector(0, 0, 1), 5),  # 25
    Part.Circle(App.Vector(-8, 434, 0), App.Vector(0, 0, 1), 5),  # 26
    Part.Circle(App.Vector(-8, 445, 0), App.Vector(0, 0, 1), 5),  # 27
    Part.Circle(App.Vector(-8, 456, 0), App.Vector(0, 0, 1), 5),  # 28
    Part.Circle(App.Vector(-8, 467, 0), App.Vector(0, 0, 1), 5),  # 29
    Part.Circle(App.Vector(-8, 478, 0), App.Vector(0, 0, 1), 5),  # 30
    Part.Circle(App.Vector(-8, 489, 0), App.Vector(0, 0, 1), 5),  # 31
    Part.Circle(App.Vector(-8, 500, 0), App.Vector(0, 0, 1), 5),  # 32
    Part.Circle(App.Vector(-8, 511, 0), App.Vector(0, 0, 1), 5),  # 33
    Part.Circle(App.Vector(-8, 522, 0), App.Vector(0, 0, 1), 5),  # 34
    Part.Circle(App.Vector(-8, 533, 0), App.Vector(0, 0, 1), 5),  # 35
    Part.Circle(App.Vector(-8, 544, 0), App.Vector(0, 0, 1), 5),  # 36
    Part.Circle(App.Vector(-8, 555, 0), App.Vector(0, 0, 1), 5),  # 37
    Part.Circle(App.Vector(-8, 566, 0), App.Vector(0, 0, 1), 5),  # 38
    Part.Circle(App.Vector(-8, 577, 0), App.Vector(0, 0, 1), 5),  # 39
    Part.Circle(App.Vector(-8, 588, 0), App.Vector(0, 0, 1), 5),  # 40
    Part.Circle(App.Vector(-8, 599, 0), App.Vector(0, 0, 1), 5),  # 41
    Part.Circle(App.Vector(-8, 610, 0), App.Vector(0, 0, 1), 5),  # 42
    Part.Circle(App.Vector(-8, 621, 0), App.Vector(0, 0, 1), 5),  # 43
], False)
sketch11.addConstraint([
    Sketcher.Constraint("Equal", 0, 1),
    Sketcher.Constraint("Equal", 1, 2),
    Sketcher.Constraint("Equal", 2, 3),
    Sketcher.Constraint("Equal", 3, 4),
    Sketcher.Constraint("Equal", 4, 5),
    Sketcher.Constraint("Equal", 5, 6),
    Sketcher.Constraint("Equal", 6, 7),
    Sketcher.Constraint("Equal", 7, 8),
    Sketcher.Constraint("Equal", 8, 9),
    Sketcher.Constraint("Equal", 9, 10),
    Sketcher.Constraint("Equal", 10, 11),
    Sketcher.Constraint("Equal", 11, 12),
    Sketcher.Constraint("Equal", 12, 13),
    Sketcher.Constraint("Equal", 13, 14),
    Sketcher.Constraint("Equal", 14, 15),
    Sketcher.Constraint("Equal", 15, 16),
    Sketcher.Constraint("Equal", 16, 17),
    Sketcher.Constraint("Equal", 17, 18),
    Sketcher.Constraint("Equal", 18, 19),
    Sketcher.Constraint("Equal", 19, 20),
    Sketcher.Constraint("Equal", 20, 21),
    Sketcher.Constraint("Equal", 21, 22),
    Sketcher.Constraint("Equal", 22, 23),
    Sketcher.Constraint("Equal", 23, 24),
    Sketcher.Constraint("Equal", 24, 25),
    Sketcher.Constraint("Equal", 25, 26),
    Sketcher.Constraint("Equal", 26, 27),
    Sketcher.Constraint("Equal", 27, 28),
    Sketcher.Constraint("Equal", 28, 29),
    Sketcher.Constraint("Equal", 29, 30),
    Sketcher.Constraint("Equal", 30, 31),
    Sketcher.Constraint("Equal", 31, 32),
    Sketcher.Constraint("Equal", 32, 33),
    Sketcher.Constraint("Equal", 33, 34),
    Sketcher.Constraint("Equal", 34, 35),
    Sketcher.Constraint("Equal", 35, 36),
    Sketcher.Constraint("Equal", 36, 37),
    Sketcher.Constraint("Equal", 37, 38),
    Sketcher.Constraint("Equal", 38, 39),
    Sketcher.Constraint("Equal", 39, 40),
    Sketcher.Constraint("Equal", 40, 41),
    Sketcher.Constraint("Equal", 41, 42),
    Sketcher.Constraint("Equal", 42, 43),
    Sketcher.Constraint("Vertical", 0, 3, 1, 3),
    Sketcher.Constraint("Vertical", 1, 3, 2, 3),
    Sketcher.Constraint("Vertical", 2, 3, 3, 3),
    Sketcher.Constraint("Vertical", 3, 3, 4, 3),
    Sketcher.Constraint("Vertical", 4, 3, 5, 3),
    Sketcher.Constraint("Vertical", 5, 3, 6, 3),
    Sketcher.Constraint("Vertical", 6, 3, 7, 3),
    Sketcher.Constraint("Vertical", 7, 3, 8, 3),
    Sketcher.Constraint("Vertical", 8, 3, 9, 3),
    Sketcher.Constraint("Vertical", 9, 3, 10, 3),
    Sketcher.Constraint("Vertical", 10, 3, 11, 3),
    Sketcher.Constraint("Vertical", 11, 3, 12, 3),
    Sketcher.Constraint("Vertical", 12, 3, 13, 3),
    Sketcher.Constraint("Vertical", 13, 3, 14, 3),
    Sketcher.Constraint("Vertical", 14, 3, 15, 3),
    Sketcher.Constraint("Vertical", 15, 3, 16, 3),
    Sketcher.Constraint("Vertical", 16, 3, 17, 3),
    Sketcher.Constraint("Vertical", 17, 3, 18, 3),
    Sketcher.Constraint("Vertical", 18, 3, 19, 3),
    Sketcher.Constraint("Vertical", 19, 3, 20, 3),
    Sketcher.Constraint("Vertical", 20, 3, 21, 3),
    Sketcher.Constraint("Vertical", 21, 3, 22, 3),
    Sketcher.Constraint("Vertical", 22, 3, 23, 3),
    Sketcher.Constraint("Vertical", 23, 3, 24, 3),
    Sketcher.Constraint("Vertical", 24, 3, 25, 3),
    Sketcher.Constraint("Vertical", 25, 3, 26, 3),
    Sketcher.Constraint("Vertical", 26, 3, 27, 3),
    Sketcher.Constraint("Vertical", 27, 3, 28, 3),
    Sketcher.Constraint("Vertical", 28, 3, 29, 3),
    Sketcher.Constraint("Vertical", 29, 3, 30, 3),
    Sketcher.Constraint("Vertical", 30, 3, 31, 3),
    Sketcher.Constraint("Vertical", 31, 3, 32, 3),
    Sketcher.Constraint("Vertical", 32, 3, 33, 3),
    Sketcher.Constraint("Vertical", 33, 3, 34, 3),
    Sketcher.Constraint("Vertical", 34, 3, 35, 3),
    Sketcher.Constraint("Vertical", 35, 3, 36, 3),
    Sketcher.Constraint("Vertical", 36, 3, 37, 3),
    Sketcher.Constraint("Vertical", 37, 3, 38, 3),
    Sketcher.Constraint("Vertical", 38, 3, 39, 3),
    Sketcher.Constraint("Vertical", 39, 3, 40, 3),
    Sketcher.Constraint("Vertical", 40, 3, 41, 3),
    Sketcher.Constraint("Vertical", 41, 3, 42, 3),
    Sketcher.Constraint("Vertical", 42, 3, 43, 3),
    Sketcher.Constraint("Diameter", 0, Q("10 mm")),
    Sketcher.Constraint("DistanceX", 0, 3, -1, 1, Q("7.5 mm")),
    Sketcher.Constraint("DistanceY", 0, 3, 13, 3, Q("134.22 mm")),
    Sketcher.Constraint("DistanceY", 0, 3, 14, 3, Q("145.24 mm")),
    Sketcher.Constraint("DistanceY", -1, 1, 2, 3, Q("134.295 mm")),
    Sketcher.Constraint("DistanceY", -1, 1, 4, 3, Q("111.936 mm")),
    Sketcher.Constraint("DistanceY", -1, 1, 6, 3, Q("89.577 mm")),
    Sketcher.Constraint("DistanceY", -1, 1, 8, 3, Q("67.218 mm")),
    Sketcher.Constraint("DistanceY", -1, 1, 10, 3, Q("44.859 mm")),
    Sketcher.Constraint("DistanceY", -1, 1, 14, 3, Q("301.894 mm")),
    Sketcher.Constraint("DistanceY", -1, 1, 15, 3, Q("312.914 mm")),
    Sketcher.Constraint("DistanceY", -1, 1, 19, 3, Q("356.995 mm")),
    Sketcher.Constraint("DistanceY", -1, 1, 24, 3, Q("412.096 mm")),
    Sketcher.Constraint("DistanceY", -1, 1, 29, 3, Q("467.197 mm")),
    Sketcher.Constraint("DistanceY", -1, 1, 34, 3, Q("522.298 mm")),
    Sketcher.Constraint("DistanceY", -1, 1, 39, 3, Q("577.399 mm")),
    Sketcher.Constraint("DistanceY", 3, 3, 1, 3, Q("22.359 mm")),
    Sketcher.Constraint("DistanceY", 5, 3, 3, 3, Q("22.359 mm")),
    Sketcher.Constraint("DistanceY", 7, 3, 5, 3, Q("22.359 mm")),
    Sketcher.Constraint("DistanceY", 9, 3, 7, 3, Q("22.359 mm")),
    Sketcher.Constraint("DistanceY", 11, 3, 9, 3, Q("22.359 mm")),
    Sketcher.Constraint("DistanceY", 1, 3, 12, 3, Q("134.379 mm")),
    Sketcher.Constraint("DistanceY", 12, 3, 17, 3, Q("55.101 mm")),
    Sketcher.Constraint("DistanceY", 13, 3, 18, 3, Q("55.101 mm")),
    Sketcher.Constraint("DistanceY", 16, 3, 20, 3, Q("44.081 mm")),
    Sketcher.Constraint("DistanceY", 15, 3, 20, 3, Q("55.101 mm")),
    Sketcher.Constraint("DistanceY", 17, 3, 21, 3, Q("44.081 mm")),
    Sketcher.Constraint("DistanceY", 16, 3, 21, 3, Q("55.101 mm")),
    Sketcher.Constraint("DistanceY", 18, 3, 22, 3, Q("44.081 mm")),
    Sketcher.Constraint("DistanceY", 19, 3, 23, 3, Q("44.081 mm")),
    Sketcher.Constraint("DistanceY", 20, 3, 25, 3, Q("55.101 mm")),
    Sketcher.Constraint("DistanceY", 21, 3, 26, 3, Q("55.101 mm")),
    Sketcher.Constraint("DistanceY", 22, 3, 27, 3, Q("55.101 mm")),
    Sketcher.Constraint("DistanceY", 23, 3, 28, 3, Q("55.101 mm")),
    Sketcher.Constraint("DistanceY", 25, 3, 30, 3, Q("55.101 mm")),
    Sketcher.Constraint("DistanceY", 26, 3, 31, 3, Q("55.101 mm")),
    Sketcher.Constraint("DistanceY", 27, 3, 32, 3, Q("55.101 mm")),
    Sketcher.Constraint("DistanceY", 28, 3, 33, 3, Q("55.101 mm")),
    Sketcher.Constraint("DistanceY", 30, 3, 35, 3, Q("55.101 mm")),
    Sketcher.Constraint("DistanceY", 31, 3, 36, 3, Q("55.101 mm")),
    Sketcher.Constraint("DistanceY", 32, 3, 37, 3, Q("55.101 mm")),
    Sketcher.Constraint("DistanceY", 33, 3, 38, 3, Q("55.101 mm")),
    Sketcher.Constraint("DistanceY", 35, 3, 40, 3, Q("55.101 mm")),
    Sketcher.Constraint("DistanceY", 36, 3, 41, 3, Q("55.101 mm")),
    Sketcher.Constraint("DistanceY", 37, 3, 42, 3, Q("55.101 mm")),
    Sketcher.Constraint("DistanceY", 38, 3, 43, 3, Q("55.101 mm")),
])
doc.recompute()
hole10 = body.newObject("PartDesign::Hole", "Hole009")
hole10.Profile = sketch11
hole10.ThreadType = "None"
hole10.Diameter = 10
hole10.DepthType = "ThroughAll"

doc.recompute()
